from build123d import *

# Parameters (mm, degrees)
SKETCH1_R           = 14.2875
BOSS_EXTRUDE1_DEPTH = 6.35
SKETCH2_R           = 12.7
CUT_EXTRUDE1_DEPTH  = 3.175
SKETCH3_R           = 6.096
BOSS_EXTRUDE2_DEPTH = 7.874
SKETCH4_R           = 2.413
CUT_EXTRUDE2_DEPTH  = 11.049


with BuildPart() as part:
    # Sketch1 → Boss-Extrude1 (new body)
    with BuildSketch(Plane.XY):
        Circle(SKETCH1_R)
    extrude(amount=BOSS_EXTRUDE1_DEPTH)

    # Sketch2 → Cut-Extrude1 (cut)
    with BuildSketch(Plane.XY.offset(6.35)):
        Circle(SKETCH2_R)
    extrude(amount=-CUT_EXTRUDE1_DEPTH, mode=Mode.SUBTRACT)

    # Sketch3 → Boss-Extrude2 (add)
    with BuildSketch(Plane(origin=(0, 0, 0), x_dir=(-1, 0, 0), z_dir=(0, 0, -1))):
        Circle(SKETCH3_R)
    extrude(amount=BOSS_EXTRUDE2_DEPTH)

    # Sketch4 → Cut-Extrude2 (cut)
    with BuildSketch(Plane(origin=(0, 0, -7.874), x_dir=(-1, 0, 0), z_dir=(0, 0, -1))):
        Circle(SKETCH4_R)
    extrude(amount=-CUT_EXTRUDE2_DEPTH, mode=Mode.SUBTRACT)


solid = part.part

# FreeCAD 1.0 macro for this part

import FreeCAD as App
import Part
import Sketcher

V = App.Vector
Q = App.Units.Quantity

doc = App.newDocument("Part")
body = doc.addObject("PartDesign::Body", "Body")

sketch1 = body.newObject("Sketcher::SketchObject", "Sketch")
sketch1.AttachmentSupport = (doc.getObject("XY_Plane"), [""])
sketch1.MapMode = "FlatFace"
sketch1.addGeometry(Part.Circle(V(0, 0, 0), V(0, 0, 1), 14), False)
sketch1.addConstraint([
    Sketcher.Constraint("Coincident", 0, 3, -1, 1),
    Sketcher.Constraint("Diameter", 0, Q("1.125 in")),
])
pad1 = body.newObject("PartDesign::Pad", "Pad")
pad1.Profile = sketch1
pad1.Length = Q("0.25 in")

sketch2 = body.newObject("Sketcher::SketchObject", "Sketch001")
sketch2.AttachmentSupport = (doc.getObject("XY_Plane"), [""])
sketch2.MapMode = "FlatFace"
sketch2.AttachmentOffset = App.Placement(V(0, 0, 0.25 * 25.4), App.Rotation())
sketch2.addGeometry(Part.Circle(V(0, 0, 0), V(0, 0, 1), 13), False)
sketch2.addConstraint([
    Sketcher.Constraint("Coincident", 0, 3, -1, 1),
    Sketcher.Constraint("Diameter", 0, Q("1 in")),
])
pocket1 = body.newObject("PartDesign::Pocket", "Pocket")
pocket1.Profile = sketch2
pocket1.Length = Q("0.125 in")

sketch3 = body.newObject("Sketcher::SketchObject", "Sketch002")
sketch3.AttachmentSupport = (doc.getObject("XY_Plane"), [""])
sketch3.MapMode = "FlatFace"
sketch3.addGeometry(Part.Circle(V(0, 0, 0), V(0, 0, 1), 6), False)
sketch3.addConstraint([
    Sketcher.Constraint("Coincident", 0, 3, -1, 1),
    Sketcher.Constraint("Diameter", 0, Q("0.48 in")),
])
pad2 = body.newObject("PartDesign::Pad", "Pad001")
pad2.Profile = sketch3
pad2.Length = Q("0.31 in")
pad2.Reversed = True

sketch4 = body.newObject("Sketcher::SketchObject", "Sketch003")
sketch4.AttachmentSupport = (doc.getObject("XY_Plane"), [""])
sketch4.MapMode = "FlatFace"
sketch4.AttachmentOffset = App.Placement(V(0, 0, -0.31 * 25.4), App.Rotation())
sketch4.addGeometry(Part.Circle(V(0, 0, 0), V(0, 0, 1), 2.4), False)
sketch4.addConstraint([
    Sketcher.Constraint("Coincident", 0, 3, -1, 1),
    Sketcher.Constraint("Diameter", 0, Q("0.19 in")),
])
pocket2 = body.newObject("PartDesign::Pocket", "Pocket001")
pocket2.Profile = sketch4
pocket2.Length = Q("0.435 in")
pocket2.Reversed = True

doc.recompute()
